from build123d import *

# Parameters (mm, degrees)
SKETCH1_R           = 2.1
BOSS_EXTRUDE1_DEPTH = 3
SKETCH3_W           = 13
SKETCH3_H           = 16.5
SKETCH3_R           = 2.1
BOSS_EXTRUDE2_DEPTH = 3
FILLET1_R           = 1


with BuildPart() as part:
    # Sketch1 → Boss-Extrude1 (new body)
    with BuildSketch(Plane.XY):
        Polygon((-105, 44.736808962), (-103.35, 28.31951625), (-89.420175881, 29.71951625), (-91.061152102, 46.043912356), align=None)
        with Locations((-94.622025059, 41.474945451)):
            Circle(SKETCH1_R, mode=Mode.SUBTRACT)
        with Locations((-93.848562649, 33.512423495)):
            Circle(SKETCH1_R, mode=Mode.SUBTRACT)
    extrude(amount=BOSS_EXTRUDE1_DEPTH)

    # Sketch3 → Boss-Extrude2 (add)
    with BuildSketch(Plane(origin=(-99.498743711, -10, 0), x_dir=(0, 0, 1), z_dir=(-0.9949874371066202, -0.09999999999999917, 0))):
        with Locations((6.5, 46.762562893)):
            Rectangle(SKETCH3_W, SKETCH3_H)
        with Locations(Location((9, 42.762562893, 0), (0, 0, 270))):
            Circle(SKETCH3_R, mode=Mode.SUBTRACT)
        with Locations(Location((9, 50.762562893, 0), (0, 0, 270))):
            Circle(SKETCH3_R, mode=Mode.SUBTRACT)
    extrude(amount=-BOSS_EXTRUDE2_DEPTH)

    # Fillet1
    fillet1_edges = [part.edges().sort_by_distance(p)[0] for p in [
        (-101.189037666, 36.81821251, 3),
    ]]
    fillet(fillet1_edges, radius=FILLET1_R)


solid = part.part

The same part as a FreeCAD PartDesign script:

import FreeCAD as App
import Part
import Sketcher

V = App.Vector
Q = App.Units.Quantity


def edges_at(feature, points):
    """Names of the edges that pass closest to the given points."""
    edges = feature.Shape.Edges
    near = lambda p: min(range(len(edges)), key=lambda i: edges[i].distToShape(Part.Vertex(*p))[0])
    return sorted({f"Edge{near(p) + 1}" for p in points})

doc = App.newDocument("Part")
params = doc.addObject("Spreadsheet::Sheet", "Params")
for row, (alias, value) in enumerate([
    ("sketch1_diameter", "4.2 mm"),
    ("sketch1_length", "14 mm"),
    ("sketch1_length2", "16.5 mm"),
    ("pad1_length", "3 mm"),
    ("sketch2_diameter", "4.2 mm"),
    ("sketch2_width", "13 mm"),
    ("sketch2_height", "16.5 mm"),
    ("pad2_length", "3 mm"),
    ("fillet_radius", "1 mm"),
], start=1):
    params.set(f"A{row}", alias)
    params.set(f"B{row}", "=" + value)
    params.setAlias(f"B{row}", alias)

body = doc.addObject("PartDesign::Body", "Body")

# Sketch on XY plane
sketch1 = doc.addObject("Sketcher::SketchObject", "Sketch")
body.addObject(sketch1)
sketch1.AttachmentSupport = (doc.XY_Plane, [""])
sketch1.MapMode = "FlatFace"
sketch1.addGeometry([
    Part.LineSegment(V(-105, 44.7, 0), V(-103.3, 28.3, 0)),  # 0
    Part.LineSegment(V(-103.3, 28.3, 0), V(-89.4, 29.7, 0)),  # 1
    Part.LineSegment(V(-89.4, 29.7, 0), V(-91.1, 46, 0)),  # 2
    Part.LineSegment(V(-91.1, 46, 0), V(-105, 44.7, 0)),  # 3
    Part.Circle(V(-93.8, 33.5, 0), V(0, 0, 1), 2.1),  # 4
    Part.Circle(V(-94.6, 41.5, 0), V(0, 0, 1), 2.1),  # 5
], False)
sketch1.addConstraint([
    Sketcher.Constraint("Coincident", 0, 2, 1, 1),
    Sketcher.Constraint("Coincident", 1, 2, 2, 1),
    Sketcher.Constraint("Coincident", 2, 2, 3, 1),
    Sketcher.Constraint("Coincident", 3, 2, 0, 1),
    Sketcher.Constraint("Equal", 4, 5),
    Sketcher.Constraint("Perpendicular", 0, 1),
    Sketcher.Constraint("Equal", 1, 3),
    Sketcher.Constraint("Diameter", 4, Q("4.2 mm")),
    Sketcher.Constraint("Distance", 1, Q("14 mm")),
    Sketcher.Constraint("DistanceX", 3, 2, -1, 1, Q("105 mm")),
    Sketcher.Constraint("Distance", 0, Q("16.5 mm")),
    Sketcher.Constraint("DistanceY", 0, 2, 1, 2, Q("1.4 mm")),
    Sketcher.Constraint("DistanceY", -1, 1, 3, 2, Q("44.736809 mm")),
    Sketcher.Constraint("DistanceY", 4, 3, 5, 3, Q("7.962522 mm")),
    Sketcher.Constraint("DistanceY", 0, 2, 5, 3, Q("13.155429 mm")),
    Sketcher.Constraint("DistanceX", 5, 3, 1, 2, Q("5.201849 mm")),
    Sketcher.Constraint("DistanceX", 4, 3, 2, 2, Q("2.787411 mm")),
    Sketcher.Constraint("DistanceY", 4, 3, 2, 2, Q("12.531489 mm")),
])
sketch1.setExpression("Constraints[7]", "Params.sketch1_diameter")
sketch1.setExpression("Constraints[8]", "Params.sketch1_length")
sketch1.setExpression("Constraints[10]", "Params.sketch1_length2")
pad1 = doc.addObject("PartDesign::Pad", "Pad")
body.addObject(pad1)
pad1.Profile = sketch1
pad1.setExpression("Length", "Params.pad1_length")

# Sketch on an angled plane
sketch2 = doc.addObject("Sketcher::SketchObject", "Sketch001")
body.addObject(sketch2)
sketch2.Placement = App.Placement(V(-99.498744, -10, 0), App.Rotation(V(0, 0, 1), V(-0.1, 0.994987437, 0), V(-0.994987437, -0.1, 0), "ZXY"))
sketch2.addGeometry([
    Part.LineSegment(V(0, 55, 0), V(0, 38.5, 0)),  # 0
    Part.LineSegment(V(0, 38.5, 0), V(13, 38.5, 0)),  # 1
    Part.LineSegment(V(13, 38.5, 0), V(13, 55, 0)),  # 2
    Part.LineSegment(V(13, 55, 0), V(0, 55, 0)),  # 3
    Part.Circle(V(9, 42.8, 0), V(0, 0, 1), 2.1),  # 4
    Part.Circle(V(9, 50.8, 0), V(0, 0, 1), 2.1),  # 5
], False)
sketch2.addConstraint([
    Sketcher.Constraint("Coincident", 0, 2, 1, 1),
    Sketcher.Constraint("Coincident", 1, 2, 2, 1),
    Sketcher.Constraint("Coincident", 2, 2, 3, 1),
    Sketcher.Constraint("Coincident", 3, 2, 0, 1),
    Sketcher.Constraint("Vertical", 0),
    Sketcher.Constraint("Horizontal", 1),
    Sketcher.Constraint("Vertical", 2),
    Sketcher.Constraint("Horizontal", 3),
    Sketcher.Constraint("Equal", 4, 5),
    Sketcher.Constraint("PointOnObject", 0, 2, -2),
    Sketcher.Constraint("Vertical", 4, 3, 5, 3),
    Sketcher.Constraint("Diameter", 4, Q("4.2 mm")),
    Sketcher.Constraint("DistanceX", 1, 1, 1, 2, Q("13 mm")),
    Sketcher.Constraint("DistanceY", 0, 2, 0, 1, Q("16.5 mm")),
    Sketcher.Constraint("DistanceX", -1, 1, 4, 3, Q("9 mm")),
    Sketcher.Constraint("DistanceY", 4, 3, 5, 3, Q("8 mm")),
    Sketcher.Constraint("DistanceY", 0, 2, 4, 3, Q("4.25 mm")),
    Sketcher.Constraint("DistanceY", -1, 1, 4, 3, Q("42.762563 mm")),
])
sketch2.setExpression("Constraints[11]", "Params.sketch2_diameter")
sketch2.setExpression("Constraints[12]", "Params.sketch2_width")
sketch2.setExpression("Constraints[13]", "Params.sketch2_height")
pad2 = doc.addObject("PartDesign::Pad", "Pad001")
body.addObject(pad2)
pad2.Profile = sketch2
pad2.setExpression("Length", "Params.pad2_length")
pad2.Reversed = True
doc.recompute()

fillet = doc.addObject("PartDesign::Fillet", "Fillet")
body.addObject(fillet)
fillet.Base = (pad2, edges_at(pad2, [(-101.189, 36.818, 3)]))
fillet.setExpression("Radius", "Params.fillet_radius")

doc.recompute()
